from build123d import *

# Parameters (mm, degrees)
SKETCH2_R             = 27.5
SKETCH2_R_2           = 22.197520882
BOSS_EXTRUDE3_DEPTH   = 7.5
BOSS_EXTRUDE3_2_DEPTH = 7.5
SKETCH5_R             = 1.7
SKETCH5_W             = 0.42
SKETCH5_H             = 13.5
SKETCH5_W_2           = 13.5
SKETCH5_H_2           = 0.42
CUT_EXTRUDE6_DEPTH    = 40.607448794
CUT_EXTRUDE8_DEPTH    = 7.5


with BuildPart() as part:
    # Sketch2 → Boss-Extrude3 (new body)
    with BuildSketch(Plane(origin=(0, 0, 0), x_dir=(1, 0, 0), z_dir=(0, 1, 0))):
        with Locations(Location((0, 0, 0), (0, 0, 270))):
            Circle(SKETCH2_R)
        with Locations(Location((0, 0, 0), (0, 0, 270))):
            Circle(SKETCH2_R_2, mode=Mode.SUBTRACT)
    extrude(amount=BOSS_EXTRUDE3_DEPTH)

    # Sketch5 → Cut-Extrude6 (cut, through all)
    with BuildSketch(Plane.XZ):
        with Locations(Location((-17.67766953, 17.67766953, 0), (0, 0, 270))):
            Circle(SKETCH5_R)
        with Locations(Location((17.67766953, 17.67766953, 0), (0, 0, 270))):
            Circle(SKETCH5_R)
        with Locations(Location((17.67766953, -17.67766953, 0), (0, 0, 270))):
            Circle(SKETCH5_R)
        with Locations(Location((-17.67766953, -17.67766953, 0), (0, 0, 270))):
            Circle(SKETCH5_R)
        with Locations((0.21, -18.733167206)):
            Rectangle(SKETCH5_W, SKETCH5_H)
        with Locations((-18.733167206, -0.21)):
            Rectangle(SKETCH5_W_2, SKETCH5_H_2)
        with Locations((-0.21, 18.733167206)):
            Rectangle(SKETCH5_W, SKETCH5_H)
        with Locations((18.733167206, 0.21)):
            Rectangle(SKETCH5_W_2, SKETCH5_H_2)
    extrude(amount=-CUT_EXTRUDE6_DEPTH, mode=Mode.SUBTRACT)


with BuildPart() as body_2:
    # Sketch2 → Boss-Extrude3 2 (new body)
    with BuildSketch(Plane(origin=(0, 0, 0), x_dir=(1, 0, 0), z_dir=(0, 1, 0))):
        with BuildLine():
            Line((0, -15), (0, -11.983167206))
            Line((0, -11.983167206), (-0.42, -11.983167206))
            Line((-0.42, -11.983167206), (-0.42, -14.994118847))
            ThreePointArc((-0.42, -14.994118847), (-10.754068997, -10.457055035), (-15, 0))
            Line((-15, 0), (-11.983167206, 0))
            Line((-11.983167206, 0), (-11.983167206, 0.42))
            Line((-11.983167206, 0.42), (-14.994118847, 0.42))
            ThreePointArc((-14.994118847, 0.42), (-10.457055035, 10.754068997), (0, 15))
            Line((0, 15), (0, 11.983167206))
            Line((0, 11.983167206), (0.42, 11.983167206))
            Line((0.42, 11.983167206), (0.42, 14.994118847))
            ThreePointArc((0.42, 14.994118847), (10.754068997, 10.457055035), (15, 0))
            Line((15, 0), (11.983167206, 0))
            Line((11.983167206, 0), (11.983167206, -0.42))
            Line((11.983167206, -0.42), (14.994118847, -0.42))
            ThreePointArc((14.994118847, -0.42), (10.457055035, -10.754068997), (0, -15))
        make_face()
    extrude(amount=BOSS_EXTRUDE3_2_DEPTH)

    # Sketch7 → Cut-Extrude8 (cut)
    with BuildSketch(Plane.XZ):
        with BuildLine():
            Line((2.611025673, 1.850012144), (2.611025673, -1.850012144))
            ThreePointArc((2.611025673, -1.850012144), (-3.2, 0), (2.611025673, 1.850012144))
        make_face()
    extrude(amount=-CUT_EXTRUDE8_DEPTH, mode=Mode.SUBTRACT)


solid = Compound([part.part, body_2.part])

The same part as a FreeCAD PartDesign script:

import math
import FreeCAD as App
import Part
import Sketcher

V = App.Vector

doc = App.newDocument("Part")
params = doc.addObject("Spreadsheet::Sheet", "Params")
for row, (alias, value) in enumerate([
    ("sketch1_diameter", "55 mm"),
    ("pad1_length", "7.5 mm"),
    ("sketch2_diameter", "3.4 mm"),
    ("sketch2_width", "13.5 mm"),
    ("sketch2_width2", "0.42 mm"),
    ("sketch3_radius", "15 mm"),
    ("sketch3_width", "0.42 mm"),
    ("pad2_length", "7.5 mm"),
    ("sketch4_radius", "3.2 mm"),
    ("pocket2_length", "7.5 mm"),
], start=1):
    params.set(f"A{row}", alias)
    params.set(f"B{row}", "=" + value)
    params.setAlias(f"B{row}", alias)

body = doc.addObject("PartDesign::Body", "Body")

# Sketch on XZ plane
sketch1 = body.newObject("Sketcher::SketchObject", "Sketch")
sketch1.AttachmentSupport = (doc.getObject("XZ_Plane"), [""])
sketch1.MapMode = "FlatFace"
sketch1.addGeometry(Part.Circle(V(0, 0, 0), V(0, 0, 1), 27.5), False)
sketch1.addGeometry(Part.Circle(V(0, 0, 0), V(0, 0, 1), 22.197521), False)
sketch1.addConstraint(Sketcher.Constraint("Coincident", 0, 3, -1, 1))
sketch1.addConstraint(Sketcher.Constraint("Coincident", 1, 3, -1, 1))
sketch1.addConstraint(Sketcher.Constraint("Diameter", 0, 55.0))
sketch1.addConstraint(Sketcher.Constraint("Diameter", 1, 44.395042))
sketch1.setExpression("Constraints[2]", "Params.sketch1_diameter")
pad1 = body.newObject("PartDesign::Pad", "Pad")
pad1.Profile = sketch1
pad1.setExpression("Length", "Params.pad1_length")
pad1.Reversed = True

# Sketch on XZ plane
sketch2 = body.newObject("Sketcher::SketchObject", "Sketch001")
sketch2.AttachmentSupport = (doc.getObject("XZ_Plane"), [""])
sketch2.MapMode = "FlatFace"
sketch2.addGeometry(Part.Circle(V(-17.67767, 17.67767, 0), V(0, 0, 1), 1.7), False)
sketch2.addGeometry(Part.Circle(V(17.67767, 17.67767, 0), V(0, 0, 1), 1.7), False)
sketch2.addGeometry(Part.Circle(V(17.67767, -17.67767, 0), V(0, 0, 1), 1.7), False)
sketch2.addGeometry(Part.Circle(V(-17.67767, -17.67767, 0), V(0, 0, 1), 1.7), False)
sketch2.addGeometry(Part.LineSegment(V(0, -11.983167, 0), V(0, -25.483167, 0)), False)
sketch2.addGeometry(Part.LineSegment(V(0, -25.483167, 0), V(0.42, -25.483167, 0)), False)
sketch2.addGeometry(Part.LineSegment(V(0.42, -25.483167, 0), V(0.42, -11.983167, 0)), False)
sketch2.addGeometry(Part.LineSegment(V(0.42, -11.983167, 0), V(0, -11.983167, 0)), False)
sketch2.addGeometry(Part.LineSegment(V(-25.483167, 0, 0), V(-25.483167, -0.42, 0)), False)
sketch2.addGeometry(Part.LineSegment(V(-25.483167, -0.42, 0), V(-11.983167, -0.42, 0)), False)
sketch2.addGeometry(Part.LineSegment(V(-11.983167, -0.42, 0), V(-11.983167, 0, 0)), False)
sketch2.addGeometry(Part.LineSegment(V(-11.983167, 0, 0), V(-25.483167, 0, 0)), False)
sketch2.addGeometry(Part.LineSegment(V(-0.42, 25.483167, 0), V(-0.42, 11.983167, 0)), False)
sketch2.addGeometry(Part.LineSegment(V(-0.42, 11.983167, 0), V(0, 11.983167, 0)), False)
sketch2.addGeometry(Part.LineSegment(V(0, 11.983167, 0), V(0, 25.483167, 0)), False)
sketch2.addGeometry(Part.LineSegment(V(0, 25.483167, 0), V(-0.42, 25.483167, 0)), False)
sketch2.addGeometry(Part.LineSegment(V(11.983167, 0.42, 0), V(11.983167, 0, 0)), False)
sketch2.addGeometry(Part.LineSegment(V(11.983167, 0, 0), V(25.483167, 0, 0)), False)
sketch2.addGeometry(Part.LineSegment(V(25.483167, 0, 0), V(25.483167, 0.42, 0)), False)
sketch2.addGeometry(Part.LineSegment(V(25.483167, 0.42, 0), V(11.983167, 0.42, 0)), False)
sketch2.addConstraint(Sketcher.Constraint("Coincident", 4, 2, 5, 1))
sketch2.addConstraint(Sketcher.Constraint("Coincident", 5, 2, 6, 1))
sketch2.addConstraint(Sketcher.Constraint("Coincident", 6, 2, 7, 1))
sketch2.addConstraint(Sketcher.Constraint("Coincident", 7, 2, 4, 1))
sketch2.addConstraint(Sketcher.Constraint("Coincident", 8, 2, 9, 1))
sketch2.addConstraint(Sketcher.Constraint("Coincident", 9, 2, 10, 1))
sketch2.addConstraint(Sketcher.Constraint("Coincident", 10, 2, 11, 1))
sketch2.addConstraint(Sketcher.Constraint("Coincident", 11, 2, 8, 1))
sketch2.addConstraint(Sketcher.Constraint("Coincident", 12, 2, 13, 1))
sketch2.addConstraint(Sketcher.Constraint("Coincident", 13, 2, 14, 1))
sketch2.addConstraint(Sketcher.Constraint("Coincident", 14, 2, 15, 1))
sketch2.addConstraint(Sketcher.Constraint("Coincident", 15, 2, 12, 1))
sketch2.addConstraint(Sketcher.Constraint("Coincident", 16, 2, 17, 1))
sketch2.addConstraint(Sketcher.Constraint("Coincident", 17, 2, 18, 1))
sketch2.addConstraint(Sketcher.Constraint("Coincident", 18, 2, 19, 1))
sketch2.addConstraint(Sketcher.Constraint("Coincident", 19, 2, 16, 1))
sketch2.addConstraint(Sketcher.Constraint("Vertical", 4))
sketch2.addConstraint(Sketcher.Constraint("Horizontal", 5))
sketch2.addConstraint(Sketcher.Constraint("Vertical", 6))
sketch2.addConstraint(Sketcher.Constraint("Horizontal", 7))
sketch2.addConstraint(Sketcher.Constraint("Vertical", 8))
sketch2.addConstraint(Sketcher.Constraint("Horizontal", 9))
sketch2.addConstraint(Sketcher.Constraint("Vertical", 10))
sketch2.addConstraint(Sketcher.Constraint("Horizontal", 11))
sketch2.addConstraint(Sketcher.Constraint("Vertical", 12))
sketch2.addConstraint(Sketcher.Constraint("Horizontal", 13))
sketch2.addConstraint(Sketcher.Constraint("Vertical", 14))
sketch2.addConstraint(Sketcher.Constraint("Horizontal", 15))
sketch2.addConstraint(Sketcher.Constraint("Vertical", 16))
sketch2.addConstraint(Sketcher.Constraint("Horizontal", 17))
sketch2.addConstraint(Sketcher.Constraint("Vertical", 18))
sketch2.addConstraint(Sketcher.Constraint("Horizontal", 19))
sketch2.addConstraint(Sketcher.Constraint("Equal", 0, 1))
sketch2.addConstraint(Sketcher.Constraint("Equal", 1, 2))
sketch2.addConstraint(Sketcher.Constraint("Equal", 2, 3))
sketch2.addConstraint(Sketcher.Constraint("Symmetric", 0, 3, 2, 3, -1, 1))
sketch2.addConstraint(Sketcher.Constraint("Symmetric", 1, 3, 3, 3, -1, 1))
sketch2.addConstraint(Sketcher.Constraint("Symmetric", 6, 2, 12, 2, -1, 1))
sketch2.addConstraint(Sketcher.Constraint("Symmetric", 4, 2, 14, 2, -1, 1))
sketch2.addConstraint(Sketcher.Constraint("Symmetric", 10, 2, 16, 2, -1, 1))
sketch2.addConstraint(Sketcher.Constraint("Symmetric", 8, 2, 18, 2, -1, 1))
sketch2.addConstraint(Sketcher.Constraint("Symmetric", 0, 3, 1, 3, -2))
sketch2.addConstraint(Sketcher.Constraint("PointOnObject", 4, 2, -2))
sketch2.addConstraint(Sketcher.Constraint("PointOnObject", 10, 2, -1))
sketch2.addConstraint(Sketcher.Constraint("Equal", 19, 4))
sketch2.addConstraint(Sketcher.Constraint("Equal", 15, 8))
sketch2.addConstraint(Sketcher.Constraint("Diameter", 0, 3.4))
sketch2.addConstraint(Sketcher.Constraint("DistanceX", 9, 1, 9, 2, 13.5))
sketch2.addConstraint(Sketcher.Constraint("DistanceX", 5, 1, 5, 2, 0.42))
sketch2.addConstraint(Sketcher.Constraint("DistanceX", 0, 3, -1, 1, 17.67767))
sketch2.addConstraint(Sketcher.Constraint("DistanceY", -1, 1, 0, 3, 17.67767))
sketch2.addConstraint(Sketcher.Constraint("DistanceY", 4, 2, -1, 1, 25.483167))
sketch2.addConstraint(Sketcher.Constraint("DistanceX", 8, 2, -1, 1, 25.483167))
sketch2.setExpression("Constraints[46]", "Params.sketch2_diameter")
sketch2.setExpression("Constraints[47]", "Params.sketch2_width")
sketch2.setExpression("Constraints[48]", "Params.sketch2_width2")
pocket1 = body.newObject("PartDesign::Pocket", "Pocket")
pocket1.Profile = sketch2
pocket1.Type = "ThroughAll"
body2 = doc.addObject("PartDesign::Body", "Body001")

# Sketch on XZ plane
sketch3 = body2.newObject("Sketcher::SketchObject", "Sketch002")
sketch3.AttachmentSupport = (doc.getObject("XZ_Plane001"), [""])
sketch3.MapMode = "FlatFace"
sketch3.addGeometry(Part.LineSegment(V(0, 11.983167, 0), V(0, 15, 0)), False)
sketch3.addGeometry(Part.ArcOfCircle(Part.Circle(V(0, 0, 0), V(0, 0, 1), 15), math.radians(1.604492), math.radians(90)), False)
sketch3.addGeometry(Part.LineSegment(V(14.994119, 0.42, 0), V(11.983167, 0.42, 0)), False)
sketch3.addGeometry(Part.LineSegment(V(11.983167, 0.42, 0), V(11.983167, 0, 0)), False)
sketch3.addGeometry(Part.LineSegment(V(11.983167, 0, 0), V(15, 0, 0)), False)
sketch3.addGeometry(Part.ArcOfCircle(Part.Circle(V(0, 0, 0), V(0, 0, 1), 15), math.radians(-88.395508), math.radians(0)), False)
sketch3.addGeometry(Part.LineSegment(V(0.42, -14.994119, 0), V(0.42, -11.983167, 0)), False)
sketch3.addGeometry(Part.LineSegment(V(0.42, -11.983167, 0), V(0, -11.983167, 0)), False)
sketch3.addGeometry(Part.LineSegment(V(0, -11.983167, 0), V(0, -15, 0)), False)
sketch3.addGeometry(Part.ArcOfCircle(Part.Circle(V(0, 0, 0), V(0, 0, 1), 15), math.radians(-178.395508), math.radians(-90)), False)
sketch3.addGeometry(Part.LineSegment(V(-14.994119, -0.42, 0), V(-11.983167, -0.42, 0)), False)
sketch3.addGeometry(Part.LineSegment(V(-11.983167, -0.42, 0), V(-11.983167, 0, 0)), False)
sketch3.addGeometry(Part.LineSegment(V(-11.983167, 0, 0), V(-15, 0, 0)), False)
sketch3.addGeometry(Part.ArcOfCircle(Part.Circle(V(0, 0, 0), V(0, 0, 1), 15), math.radians(91.604492), math.radians(180)), False)
sketch3.addGeometry(Part.LineSegment(V(-0.42, 14.994119, 0), V(-0.42, 11.983167, 0)), False)
sketch3.addGeometry(Part.LineSegment(V(-0.42, 11.983167, 0), V(0, 11.983167, 0)), False)
sketch3.addConstraint(Sketcher.Constraint("Coincident", 0, 2, 1, 2))
sketch3.addConstraint(Sketcher.Constraint("Coincident", 1, 1, 2, 1))
sketch3.addConstraint(Sketcher.Constraint("Coincident", 2, 2, 3, 1))
sketch3.addConstraint(Sketcher.Constraint("Coincident", 3, 2, 4, 1))
sketch3.addConstraint(Sketcher.Constraint("Coincident", 4, 2, 5, 2))
sketch3.addConstraint(Sketcher.Constraint("Coincident", 5, 1, 6, 1))
sketch3.addConstraint(Sketcher.Constraint("Coincident", 6, 2, 7, 1))
sketch3.addConstraint(Sketcher.Constraint("Coincident", 7, 2, 8, 1))
sketch3.addConstraint(Sketcher.Constraint("Coincident", 8, 2, 9, 2))
sketch3.addConstraint(Sketcher.Constraint("Coincident", 9, 1, 10, 1))
sketch3.addConstraint(Sketcher.Constraint("Coincident", 10, 2, 11, 1))
sketch3.addConstraint(Sketcher.Constraint("Coincident", 11, 2, 12, 1))
sketch3.addConstraint(Sketcher.Constraint("Coincident", 12, 2, 13, 2))
sketch3.addConstraint(Sketcher.Constraint("Coincident", 13, 1, 14, 1))
sketch3.addConstraint(Sketcher.Constraint("Coincident", 14, 2, 15, 1))
sketch3.addConstraint(Sketcher.Constraint("Coincident", 15, 2, 0, 1))
sketch3.addConstraint(Sketcher.Constraint("Vertical", 0))
sketch3.addConstraint(Sketcher.Constraint("Horizontal", 2))
sketch3.addConstraint(Sketcher.Constraint("Vertical", 3))
sketch3.addConstraint(Sketcher.Constraint("Horizontal", 4))
sketch3.addConstraint(Sketcher.Constraint("Vertical", 6))
sketch3.addConstraint(Sketcher.Constraint("Horizontal", 7))
sketch3.addConstraint(Sketcher.Constraint("Vertical", 8))
sketch3.addConstraint(Sketcher.Constraint("Horizontal", 10))
sketch3.addConstraint(Sketcher.Constraint("Vertical", 11))
sketch3.addConstraint(Sketcher.Constraint("Horizontal", 12))
sketch3.addConstraint(Sketcher.Constraint("Vertical", 14))
sketch3.addConstraint(Sketcher.Constraint("Horizontal", 15))
sketch3.addConstraint(Sketcher.Constraint("Coincident", 1, 3, -1, 1))
sketch3.addConstraint(Sketcher.Constraint("Coincident", 5, 3, -1, 1))
sketch3.addConstraint(Sketcher.Constraint("Coincident", 9, 3, -1, 1))
sketch3.addConstraint(Sketcher.Constraint("Coincident", 13, 3, -1, 1))
sketch3.addConstraint(Sketcher.Constraint("Equal", 1, 5))
sketch3.addConstraint(Sketcher.Constraint("Equal", 5, 9))
sketch3.addConstraint(Sketcher.Constraint("Equal", 9, 13))
sketch3.addConstraint(Sketcher.Constraint("Symmetric", 2, 2, 10, 2, -1, 1))
sketch3.addConstraint(Sketcher.Constraint("Symmetric", 6, 2, 14, 2, -1, 1))
sketch3.addConstraint(Sketcher.Constraint("PointOnObject", 0, 2, -2))
sketch3.addConstraint(Sketcher.Constraint("PointOnObject", 3, 2, -1))
sketch3.addConstraint(Sketcher.Constraint("PointOnObject", 7, 2, -2))
sketch3.addConstraint(Sketcher.Constraint("PointOnObject", 11, 2, -1))
sketch3.addConstraint(Sketcher.Constraint("Equal", 12, 0))
sketch3.addConstraint(Sketcher.Constraint("Equal", 15, 3))
sketch3.addConstraint(Sketcher.Constraint("Radius", 1, 15.0))
sketch3.addConstraint(Sketcher.Constraint("DistanceX", 7, 2, 7, 1, 0.42))
sketch3.addConstraint(Sketcher.Constraint("DistanceX", 2, 2, 2, 1, 3.010952))
sketch3.setExpression("Constraints[43]", "Params.sketch3_radius")
sketch3.setExpression("Constraints[44]", "Params.sketch3_width")
pad2 = body2.newObject("PartDesign::Pad", "Pad001")
pad2.Profile = sketch3
pad2.setExpression("Length", "Params.pad2_length")
pad2.Reversed = True

# Sketch on XZ plane
sketch4 = body2.newObject("Sketcher::SketchObject", "Sketch003")
sketch4.AttachmentSupport = (doc.getObject("XZ_Plane001"), [""])
sketch4.MapMode = "FlatFace"
sketch4.addGeometry(Part.LineSegment(V(2.611026, -1.850012, 0), V(2.611026, 1.850012, 0)), False)
sketch4.addGeometry(Part.ArcOfCircle(Part.Circle(V(0, 0, 0), V(0, 0, 1), 3.2), math.radians(35.319039), math.radians(324.680961)), False)
sketch4.addConstraint(Sketcher.Constraint("Coincident", 0, 1, 1, 2))
sketch4.addConstraint(Sketcher.Constraint("Coincident", 1, 1, 0, 2))
sketch4.addConstraint(Sketcher.Constraint("Vertical", 0))
sketch4.addConstraint(Sketcher.Constraint("Coincident", 1, 3, -1, 1))
sketch4.addConstraint(Sketcher.Constraint("Radius", 1, 3.2))
sketch4.addConstraint(Sketcher.Constraint("DistanceY", 0, 1, 0, 2, 3.700024))
sketch4.setExpression("Constraints[4]", "Params.sketch4_radius")
pocket2 = body2.newObject("PartDesign::Pocket", "Pocket001")
pocket2.Profile = sketch4
pocket2.setExpression("Length", "Params.pocket2_length")

doc.recompute()
